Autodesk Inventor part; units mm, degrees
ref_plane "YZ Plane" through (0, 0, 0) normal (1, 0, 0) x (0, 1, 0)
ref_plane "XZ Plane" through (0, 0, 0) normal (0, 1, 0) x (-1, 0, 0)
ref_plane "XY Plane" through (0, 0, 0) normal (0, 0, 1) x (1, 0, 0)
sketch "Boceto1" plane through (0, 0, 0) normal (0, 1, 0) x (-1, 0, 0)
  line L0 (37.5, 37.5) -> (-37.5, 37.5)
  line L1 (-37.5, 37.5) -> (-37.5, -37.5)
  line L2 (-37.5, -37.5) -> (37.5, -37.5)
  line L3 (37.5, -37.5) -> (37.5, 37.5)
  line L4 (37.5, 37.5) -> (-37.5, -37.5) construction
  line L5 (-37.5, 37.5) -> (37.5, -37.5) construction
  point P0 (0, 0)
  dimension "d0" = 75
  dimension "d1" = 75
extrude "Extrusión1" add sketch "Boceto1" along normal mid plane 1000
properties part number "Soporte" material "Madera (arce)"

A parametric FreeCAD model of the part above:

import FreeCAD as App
import Part
import Sketcher
Q = App.Units.Quantity

doc = App.newDocument("Part")
body = doc.addObject("PartDesign::Body", "Body")

sketch1 = body.newObject("Sketcher::SketchObject", "Sketch")
sketch1.AttachmentSupport = (doc.getObject("XZ_Plane"), [""])
sketch1.MapMode = "FlatFace"
sketch1.addGeometry([
    Part.LineSegment(App.Vector(-37.5, -37.5, 0), App.Vector(-37.5, 37.5, 0)),
    Part.LineSegment(App.Vector(-37.5, 37.5, 0), App.Vector(37.5, 37.5, 0)),
    Part.LineSegment(App.Vector(37.5, 37.5, 0), App.Vector(37.5, -37.5, 0)),
    Part.LineSegment(App.Vector(37.5, -37.5, 0), App.Vector(-37.5, -37.5, 0)),
], False)
sketch1.addConstraint([
    Sketcher.Constraint("Coincident", 0, 2, 1, 1),
    Sketcher.Constraint("Coincident", 1, 2, 2, 1),
    Sketcher.Constraint("Coincident", 2, 2, 3, 1),
    Sketcher.Constraint("Coincident", 3, 2, 0, 1),
    Sketcher.Constraint("Vertical", 0),
    Sketcher.Constraint("Horizontal", 1),
    Sketcher.Constraint("Vertical", 2),
    Sketcher.Constraint("Horizontal", 3),
    Sketcher.Constraint("Symmetric", 0, 2, 2, 2, -1, 1),
    Sketcher.Constraint("Equal", 3, 0),
    Sketcher.Constraint("DistanceX", 1, 1, 1, 2, Q("75 mm")),
])
pad1 = body.newObject("PartDesign::Pad", "Pad")
pad1.Profile = sketch1
pad1.Length = 1000
pad1.Midplane = True

doc.recompute()
